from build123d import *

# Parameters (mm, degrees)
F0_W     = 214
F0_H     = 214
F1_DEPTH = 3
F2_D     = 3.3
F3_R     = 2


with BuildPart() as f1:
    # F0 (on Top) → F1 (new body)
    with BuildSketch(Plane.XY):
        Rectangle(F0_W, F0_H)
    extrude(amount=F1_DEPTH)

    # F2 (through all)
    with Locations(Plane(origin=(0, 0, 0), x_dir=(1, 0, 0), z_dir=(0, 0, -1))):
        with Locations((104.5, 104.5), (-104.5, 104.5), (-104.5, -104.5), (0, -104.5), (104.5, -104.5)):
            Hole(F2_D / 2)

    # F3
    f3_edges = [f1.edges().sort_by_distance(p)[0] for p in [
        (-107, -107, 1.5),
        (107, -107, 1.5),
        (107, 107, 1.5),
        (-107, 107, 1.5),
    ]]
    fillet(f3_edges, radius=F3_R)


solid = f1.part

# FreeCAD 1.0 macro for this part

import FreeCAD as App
import Part
import Sketcher

V = App.Vector
Q = App.Units.Quantity


def edges_at(feature, points):
    """Names of the edges that pass closest to the given points."""
    edges = feature.Shape.Edges
    near = lambda p: min(range(len(edges)), key=lambda i: edges[i].distToShape(Part.Vertex(*p))[0])
    return sorted({f"Edge{near(p) + 1}" for p in points})


def add_polygon(sketch, points):
    """Adds a closed chain of lines whose ends are joined by coincident constraints."""
    first, n = sketch.GeometryCount, len(points)
    for a, b in zip(points, points[1:] + points[:1]):
        sketch.addGeometry(Part.LineSegment(App.Vector(*a, 0), App.Vector(*b, 0)), False)
    for i in range(n):
        sketch.addConstraint(Sketcher.Constraint("Coincident", first + i, 2, first + (i + 1) % n, 1))

doc = App.newDocument("Part")
body = doc.addObject("PartDesign::Body", "Body")

# Sketch on XY plane
sketch1 = body.newObject("Sketcher::SketchObject", "Sketch")
sketch1.AttachmentSupport = (doc.getObject("XY_Plane"), [""])
sketch1.MapMode = "FlatFace"
add_polygon(sketch1, [(-107, 107), (-107, -107), (107, -107), (107, 107)])  # lines 0-3
sketch1.addConstraint([
    Sketcher.Constraint("Vertical", 0),
    Sketcher.Constraint("Horizontal", 1),
    Sketcher.Constraint("Vertical", 2),
    Sketcher.Constraint("Horizontal", 3),
    Sketcher.Constraint("Symmetric", 0, 2, 2, 2, -1, 1),
    Sketcher.Constraint("Equal", 3, 0),
    Sketcher.Constraint("DistanceX", 1, 1, 1, 2, Q("214 mm")),
])
pad1 = body.newObject("PartDesign::Pad", "Pad")
pad1.Profile = sketch1
pad1.Length = 3

# Sketch on XY plane
sketch2 = body.newObject("Sketcher::SketchObject", "Sketch001")
sketch2.AttachmentSupport = (doc.getObject("XY_Plane"), [""])
sketch2.MapMode = "FlatFace"
sketch2.addGeometry([
    Part.Circle(V(104.5, -104.5, 0), V(0, 0, 1), 1.65),  # 0
    Part.Circle(V(-104.5, -104.5, 0), V(0, 0, 1), 1.65),  # 1
    Part.Circle(V(-104.5, 104.5, 0), V(0, 0, 1), 1.65),  # 2
    Part.Circle(V(0, 104.5, 0), V(0, 0, 1), 1.65),  # 3
    Part.Circle(V(104.5, 104.5, 0), V(0, 0, 1), 1.65),  # 4
], False)
sketch2.addConstraint([
    Sketcher.Constraint("Equal", 0, 1),
    Sketcher.Constraint("Equal", 1, 2),
    Sketcher.Constraint("Equal", 2, 3),
    Sketcher.Constraint("Equal", 3, 4),
    Sketcher.Constraint("Symmetric", 0, 3, 2, 3, -1, 1),
    Sketcher.Constraint("Symmetric", 1, 3, 4, 3, -1, 1),
    Sketcher.Constraint("Symmetric", 0, 3, 1, 3, -2),
    Sketcher.Constraint("PointOnObject", 3, 3, -2),
    Sketcher.Constraint("Horizontal", 2, 3, 3, 3),
    Sketcher.Constraint("Diameter", 0, Q("3.3 mm")),
    Sketcher.Constraint("DistanceX", 1, 3, 0, 3, Q("209 mm")),
    Sketcher.Constraint("DistanceY", 1, 3, 2, 3, Q("209 mm")),
])
doc.recompute()
hole = body.newObject("PartDesign::Hole", "Hole")
hole.Profile = sketch2
hole.ThreadType = "None"
hole.Diameter = 3.3
hole.DepthType = "ThroughAll"
hole.Reversed = True
doc.recompute()

fillet = body.newObject("PartDesign::Fillet", "Fillet")
fillet.Base = (hole, edges_at(hole, [
    (-107, -107, 1.5),
    (107, -107, 1.5),
    (107, 107, 1.5),
    (-107, 107, 1.5),
]))
fillet.Radius = 2

doc.recompute()
